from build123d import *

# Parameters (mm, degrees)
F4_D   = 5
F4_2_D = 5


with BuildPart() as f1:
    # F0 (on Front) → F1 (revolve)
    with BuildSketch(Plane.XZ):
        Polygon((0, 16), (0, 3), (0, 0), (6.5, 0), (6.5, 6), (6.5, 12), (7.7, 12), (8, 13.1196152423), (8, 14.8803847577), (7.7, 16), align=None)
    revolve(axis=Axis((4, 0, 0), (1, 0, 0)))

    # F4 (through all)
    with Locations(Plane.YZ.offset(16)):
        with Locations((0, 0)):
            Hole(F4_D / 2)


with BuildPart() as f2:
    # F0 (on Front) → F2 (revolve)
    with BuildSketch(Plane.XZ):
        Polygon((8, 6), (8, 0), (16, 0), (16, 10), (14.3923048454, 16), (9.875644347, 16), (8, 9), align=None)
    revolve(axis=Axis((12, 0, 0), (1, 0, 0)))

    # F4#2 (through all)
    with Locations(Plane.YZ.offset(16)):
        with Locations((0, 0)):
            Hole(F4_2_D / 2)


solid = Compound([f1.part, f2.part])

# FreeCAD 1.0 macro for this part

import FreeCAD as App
import Part
import Sketcher
Q = App.Units.Quantity

doc = App.newDocument("Part")
body = doc.addObject("PartDesign::Body", "Body")

sketch1 = body.newObject("Sketcher::SketchObject", "Sketch")
sketch1.AttachmentSupport = (doc.getObject("XZ_Plane"), [""])
sketch1.MapMode = "FlatFace"
sketch1.addGeometry([
    Part.LineSegment(App.Vector(0, 16, 0), App.Vector(0, 0, 0)),
    Part.LineSegment(App.Vector(0, 0, 0), App.Vector(6.5, 0, 0)),
    Part.LineSegment(App.Vector(6.5, 0, 0), App.Vector(6.5, 12, 0)),
    Part.LineSegment(App.Vector(6.5, 12, 0), App.Vector(7.7, 12, 0)),
    Part.LineSegment(App.Vector(7.7, 12, 0), App.Vector(8, 13.1, 0)),
    Part.LineSegment(App.Vector(8, 13.1, 0), App.Vector(8, 14.9, 0)),
    Part.LineSegment(App.Vector(8, 14.9, 0), App.Vector(7.7, 16, 0)),
    Part.LineSegment(App.Vector(7.7, 16, 0), App.Vector(0, 16, 0)),
], False)
sketch1.addConstraint([
    Sketcher.Constraint("Coincident", 0, 2, 1, 1),
    Sketcher.Constraint("Coincident", 1, 2, 2, 1),
    Sketcher.Constraint("Coincident", 2, 2, 3, 1),
    Sketcher.Constraint("Coincident", 3, 2, 4, 1),
    Sketcher.Constraint("Coincident", 4, 2, 5, 1),
    Sketcher.Constraint("Coincident", 5, 2, 6, 1),
    Sketcher.Constraint("Coincident", 6, 2, 7, 1),
    Sketcher.Constraint("Coincident", 7, 2, 0, 1),
    Sketcher.Constraint("Vertical", 0),
    Sketcher.Constraint("Horizontal", 1),
    Sketcher.Constraint("Vertical", 2),
    Sketcher.Constraint("Horizontal", 3),
    Sketcher.Constraint("Vertical", 5),
    Sketcher.Constraint("Horizontal", 7),
    Sketcher.Constraint("Coincident", 0, 2, -1, 1),
    Sketcher.Constraint("Vertical", 3, 2, 6, 2),
    Sketcher.Constraint("Equal", 4, 6),
    Sketcher.Constraint("DistanceY", 0, 2, 0, 1, Q("16 mm")),
    Sketcher.Constraint("DistanceY", 2, 1, 2, 2, Q("12 mm")),
    Sketcher.Constraint("Angle", 4, Q("75 deg")),
    Sketcher.Constraint("DistanceX", 1, 1, 1, 2, Q("6.5 mm")),
    Sketcher.Constraint("DistanceX", 3, 1, 3, 2, Q("1.2 mm")),
    Sketcher.Constraint("DistanceX", -1, 1, 4, 2, Q("8 mm")),
])
revolution = body.newObject("PartDesign::Revolution", "Revolution")
revolution.Profile = sketch1
revolution.ReferenceAxis = (sketch1, ["H_Axis"])
revolution.Angle = 360

sketch2 = body.newObject("Sketcher::SketchObject", "Sketch001")
sketch2.AttachmentSupport = (doc.getObject("YZ_Plane"), [""])
sketch2.MapMode = "FlatFace"
sketch2.AttachmentOffset = App.Placement(App.Vector(0, 0, 16), App.Rotation())
sketch2.addGeometry(Part.Circle(App.Vector(0, 0, 0), App.Vector(0, 0, 1), 2.5), False)
sketch2.addConstraint([
    Sketcher.Constraint("Coincident", 0, 3, -1, 1),
    Sketcher.Constraint("Diameter", 0, Q("5 mm")),
])
doc.recompute()
hole = body.newObject("PartDesign::Hole", "Hole")
hole.Profile = sketch2
hole.ThreadType = "None"
hole.Diameter = 5
hole.DepthType = "ThroughAll"
body2 = doc.addObject("PartDesign::Body", "Body001")

sketch3 = body2.newObject("Sketcher::SketchObject", "Sketch002")
sketch3.AttachmentSupport = (doc.getObject("XZ_Plane001"), [""])
sketch3.MapMode = "FlatFace"
sketch3.addGeometry([
    Part.LineSegment(App.Vector(8, 0, 0), App.Vector(16, 0, 0)),
    Part.LineSegment(App.Vector(16, 0, 0), App.Vector(16, 10, 0)),
    Part.LineSegment(App.Vector(16, 10, 0), App.Vector(14.4, 16, 0)),
    Part.LineSegment(App.Vector(14.4, 16, 0), App.Vector(9.9, 16, 0)),
    Part.LineSegment(App.Vector(9.9, 16, 0), App.Vector(8, 9, 0)),
    Part.LineSegment(App.Vector(8, 9, 0), App.Vector(8, 0, 0)),
], False)
sketch3.addConstraint([
    Sketcher.Constraint("Coincident", 0, 2, 1, 1),
    Sketcher.Constraint("Coincident", 1, 2, 2, 1),
    Sketcher.Constraint("Coincident", 2, 2, 3, 1),
    Sketcher.Constraint("Coincident", 3, 2, 4, 1),
    Sketcher.Constraint("Coincident", 4, 2, 5, 1),
    Sketcher.Constraint("Coincident", 5, 2, 0, 1),
    Sketcher.Constraint("Horizontal", 0),
    Sketcher.Constraint("Vertical", 1),
    Sketcher.Constraint("Horizontal", 3),
    Sketcher.Constraint("Vertical", 5),
    Sketcher.Constraint("PointOnObject", 0, 2, -1),
    Sketcher.Constraint("DistanceX", 0, 1, 0, 2, Q("8 mm")),
    Sketcher.Constraint("DistanceY", 1, 1, 1, 2, Q("10 mm")),
    Sketcher.Constraint("DistanceY", 5, 2, 5, 1, Q("9 mm")),
    Sketcher.Constraint("Angle", 2, Q("105 deg")),
    Sketcher.Constraint("Angle", 4, Q("-105 deg")),
    Sketcher.Constraint("DistanceX", -1, 1, 0, 2, Q("16 mm")),
    Sketcher.Constraint("DistanceY", -1, 1, 2, 2, Q("16 mm")),
])
revolution2 = body2.newObject("PartDesign::Revolution", "Revolution001")
revolution2.Profile = sketch3
revolution2.ReferenceAxis = (sketch3, ["H_Axis"])
revolution2.Angle = 360

sketch4 = body2.newObject("Sketcher::SketchObject", "Sketch003")
sketch4.AttachmentSupport = (doc.getObject("YZ_Plane001"), [""])
sketch4.MapMode = "FlatFace"
sketch4.AttachmentOffset = App.Placement(App.Vector(0, 0, 16), App.Rotation())
sketch4.addGeometry(Part.Circle(App.Vector(0, 0, 0), App.Vector(0, 0, 1), 2.5), False)
sketch4.addConstraint([
    Sketcher.Constraint("Coincident", 0, 3, -1, 1),
    Sketcher.Constraint("Diameter", 0, Q("5 mm")),
])
doc.recompute()
hole2 = body2.newObject("PartDesign::Hole", "Hole001")
hole2.Profile = sketch4
hole2.ThreadType = "None"
hole2.Diameter = 5
hole2.DepthType = "ThroughAll"

doc.recompute()
